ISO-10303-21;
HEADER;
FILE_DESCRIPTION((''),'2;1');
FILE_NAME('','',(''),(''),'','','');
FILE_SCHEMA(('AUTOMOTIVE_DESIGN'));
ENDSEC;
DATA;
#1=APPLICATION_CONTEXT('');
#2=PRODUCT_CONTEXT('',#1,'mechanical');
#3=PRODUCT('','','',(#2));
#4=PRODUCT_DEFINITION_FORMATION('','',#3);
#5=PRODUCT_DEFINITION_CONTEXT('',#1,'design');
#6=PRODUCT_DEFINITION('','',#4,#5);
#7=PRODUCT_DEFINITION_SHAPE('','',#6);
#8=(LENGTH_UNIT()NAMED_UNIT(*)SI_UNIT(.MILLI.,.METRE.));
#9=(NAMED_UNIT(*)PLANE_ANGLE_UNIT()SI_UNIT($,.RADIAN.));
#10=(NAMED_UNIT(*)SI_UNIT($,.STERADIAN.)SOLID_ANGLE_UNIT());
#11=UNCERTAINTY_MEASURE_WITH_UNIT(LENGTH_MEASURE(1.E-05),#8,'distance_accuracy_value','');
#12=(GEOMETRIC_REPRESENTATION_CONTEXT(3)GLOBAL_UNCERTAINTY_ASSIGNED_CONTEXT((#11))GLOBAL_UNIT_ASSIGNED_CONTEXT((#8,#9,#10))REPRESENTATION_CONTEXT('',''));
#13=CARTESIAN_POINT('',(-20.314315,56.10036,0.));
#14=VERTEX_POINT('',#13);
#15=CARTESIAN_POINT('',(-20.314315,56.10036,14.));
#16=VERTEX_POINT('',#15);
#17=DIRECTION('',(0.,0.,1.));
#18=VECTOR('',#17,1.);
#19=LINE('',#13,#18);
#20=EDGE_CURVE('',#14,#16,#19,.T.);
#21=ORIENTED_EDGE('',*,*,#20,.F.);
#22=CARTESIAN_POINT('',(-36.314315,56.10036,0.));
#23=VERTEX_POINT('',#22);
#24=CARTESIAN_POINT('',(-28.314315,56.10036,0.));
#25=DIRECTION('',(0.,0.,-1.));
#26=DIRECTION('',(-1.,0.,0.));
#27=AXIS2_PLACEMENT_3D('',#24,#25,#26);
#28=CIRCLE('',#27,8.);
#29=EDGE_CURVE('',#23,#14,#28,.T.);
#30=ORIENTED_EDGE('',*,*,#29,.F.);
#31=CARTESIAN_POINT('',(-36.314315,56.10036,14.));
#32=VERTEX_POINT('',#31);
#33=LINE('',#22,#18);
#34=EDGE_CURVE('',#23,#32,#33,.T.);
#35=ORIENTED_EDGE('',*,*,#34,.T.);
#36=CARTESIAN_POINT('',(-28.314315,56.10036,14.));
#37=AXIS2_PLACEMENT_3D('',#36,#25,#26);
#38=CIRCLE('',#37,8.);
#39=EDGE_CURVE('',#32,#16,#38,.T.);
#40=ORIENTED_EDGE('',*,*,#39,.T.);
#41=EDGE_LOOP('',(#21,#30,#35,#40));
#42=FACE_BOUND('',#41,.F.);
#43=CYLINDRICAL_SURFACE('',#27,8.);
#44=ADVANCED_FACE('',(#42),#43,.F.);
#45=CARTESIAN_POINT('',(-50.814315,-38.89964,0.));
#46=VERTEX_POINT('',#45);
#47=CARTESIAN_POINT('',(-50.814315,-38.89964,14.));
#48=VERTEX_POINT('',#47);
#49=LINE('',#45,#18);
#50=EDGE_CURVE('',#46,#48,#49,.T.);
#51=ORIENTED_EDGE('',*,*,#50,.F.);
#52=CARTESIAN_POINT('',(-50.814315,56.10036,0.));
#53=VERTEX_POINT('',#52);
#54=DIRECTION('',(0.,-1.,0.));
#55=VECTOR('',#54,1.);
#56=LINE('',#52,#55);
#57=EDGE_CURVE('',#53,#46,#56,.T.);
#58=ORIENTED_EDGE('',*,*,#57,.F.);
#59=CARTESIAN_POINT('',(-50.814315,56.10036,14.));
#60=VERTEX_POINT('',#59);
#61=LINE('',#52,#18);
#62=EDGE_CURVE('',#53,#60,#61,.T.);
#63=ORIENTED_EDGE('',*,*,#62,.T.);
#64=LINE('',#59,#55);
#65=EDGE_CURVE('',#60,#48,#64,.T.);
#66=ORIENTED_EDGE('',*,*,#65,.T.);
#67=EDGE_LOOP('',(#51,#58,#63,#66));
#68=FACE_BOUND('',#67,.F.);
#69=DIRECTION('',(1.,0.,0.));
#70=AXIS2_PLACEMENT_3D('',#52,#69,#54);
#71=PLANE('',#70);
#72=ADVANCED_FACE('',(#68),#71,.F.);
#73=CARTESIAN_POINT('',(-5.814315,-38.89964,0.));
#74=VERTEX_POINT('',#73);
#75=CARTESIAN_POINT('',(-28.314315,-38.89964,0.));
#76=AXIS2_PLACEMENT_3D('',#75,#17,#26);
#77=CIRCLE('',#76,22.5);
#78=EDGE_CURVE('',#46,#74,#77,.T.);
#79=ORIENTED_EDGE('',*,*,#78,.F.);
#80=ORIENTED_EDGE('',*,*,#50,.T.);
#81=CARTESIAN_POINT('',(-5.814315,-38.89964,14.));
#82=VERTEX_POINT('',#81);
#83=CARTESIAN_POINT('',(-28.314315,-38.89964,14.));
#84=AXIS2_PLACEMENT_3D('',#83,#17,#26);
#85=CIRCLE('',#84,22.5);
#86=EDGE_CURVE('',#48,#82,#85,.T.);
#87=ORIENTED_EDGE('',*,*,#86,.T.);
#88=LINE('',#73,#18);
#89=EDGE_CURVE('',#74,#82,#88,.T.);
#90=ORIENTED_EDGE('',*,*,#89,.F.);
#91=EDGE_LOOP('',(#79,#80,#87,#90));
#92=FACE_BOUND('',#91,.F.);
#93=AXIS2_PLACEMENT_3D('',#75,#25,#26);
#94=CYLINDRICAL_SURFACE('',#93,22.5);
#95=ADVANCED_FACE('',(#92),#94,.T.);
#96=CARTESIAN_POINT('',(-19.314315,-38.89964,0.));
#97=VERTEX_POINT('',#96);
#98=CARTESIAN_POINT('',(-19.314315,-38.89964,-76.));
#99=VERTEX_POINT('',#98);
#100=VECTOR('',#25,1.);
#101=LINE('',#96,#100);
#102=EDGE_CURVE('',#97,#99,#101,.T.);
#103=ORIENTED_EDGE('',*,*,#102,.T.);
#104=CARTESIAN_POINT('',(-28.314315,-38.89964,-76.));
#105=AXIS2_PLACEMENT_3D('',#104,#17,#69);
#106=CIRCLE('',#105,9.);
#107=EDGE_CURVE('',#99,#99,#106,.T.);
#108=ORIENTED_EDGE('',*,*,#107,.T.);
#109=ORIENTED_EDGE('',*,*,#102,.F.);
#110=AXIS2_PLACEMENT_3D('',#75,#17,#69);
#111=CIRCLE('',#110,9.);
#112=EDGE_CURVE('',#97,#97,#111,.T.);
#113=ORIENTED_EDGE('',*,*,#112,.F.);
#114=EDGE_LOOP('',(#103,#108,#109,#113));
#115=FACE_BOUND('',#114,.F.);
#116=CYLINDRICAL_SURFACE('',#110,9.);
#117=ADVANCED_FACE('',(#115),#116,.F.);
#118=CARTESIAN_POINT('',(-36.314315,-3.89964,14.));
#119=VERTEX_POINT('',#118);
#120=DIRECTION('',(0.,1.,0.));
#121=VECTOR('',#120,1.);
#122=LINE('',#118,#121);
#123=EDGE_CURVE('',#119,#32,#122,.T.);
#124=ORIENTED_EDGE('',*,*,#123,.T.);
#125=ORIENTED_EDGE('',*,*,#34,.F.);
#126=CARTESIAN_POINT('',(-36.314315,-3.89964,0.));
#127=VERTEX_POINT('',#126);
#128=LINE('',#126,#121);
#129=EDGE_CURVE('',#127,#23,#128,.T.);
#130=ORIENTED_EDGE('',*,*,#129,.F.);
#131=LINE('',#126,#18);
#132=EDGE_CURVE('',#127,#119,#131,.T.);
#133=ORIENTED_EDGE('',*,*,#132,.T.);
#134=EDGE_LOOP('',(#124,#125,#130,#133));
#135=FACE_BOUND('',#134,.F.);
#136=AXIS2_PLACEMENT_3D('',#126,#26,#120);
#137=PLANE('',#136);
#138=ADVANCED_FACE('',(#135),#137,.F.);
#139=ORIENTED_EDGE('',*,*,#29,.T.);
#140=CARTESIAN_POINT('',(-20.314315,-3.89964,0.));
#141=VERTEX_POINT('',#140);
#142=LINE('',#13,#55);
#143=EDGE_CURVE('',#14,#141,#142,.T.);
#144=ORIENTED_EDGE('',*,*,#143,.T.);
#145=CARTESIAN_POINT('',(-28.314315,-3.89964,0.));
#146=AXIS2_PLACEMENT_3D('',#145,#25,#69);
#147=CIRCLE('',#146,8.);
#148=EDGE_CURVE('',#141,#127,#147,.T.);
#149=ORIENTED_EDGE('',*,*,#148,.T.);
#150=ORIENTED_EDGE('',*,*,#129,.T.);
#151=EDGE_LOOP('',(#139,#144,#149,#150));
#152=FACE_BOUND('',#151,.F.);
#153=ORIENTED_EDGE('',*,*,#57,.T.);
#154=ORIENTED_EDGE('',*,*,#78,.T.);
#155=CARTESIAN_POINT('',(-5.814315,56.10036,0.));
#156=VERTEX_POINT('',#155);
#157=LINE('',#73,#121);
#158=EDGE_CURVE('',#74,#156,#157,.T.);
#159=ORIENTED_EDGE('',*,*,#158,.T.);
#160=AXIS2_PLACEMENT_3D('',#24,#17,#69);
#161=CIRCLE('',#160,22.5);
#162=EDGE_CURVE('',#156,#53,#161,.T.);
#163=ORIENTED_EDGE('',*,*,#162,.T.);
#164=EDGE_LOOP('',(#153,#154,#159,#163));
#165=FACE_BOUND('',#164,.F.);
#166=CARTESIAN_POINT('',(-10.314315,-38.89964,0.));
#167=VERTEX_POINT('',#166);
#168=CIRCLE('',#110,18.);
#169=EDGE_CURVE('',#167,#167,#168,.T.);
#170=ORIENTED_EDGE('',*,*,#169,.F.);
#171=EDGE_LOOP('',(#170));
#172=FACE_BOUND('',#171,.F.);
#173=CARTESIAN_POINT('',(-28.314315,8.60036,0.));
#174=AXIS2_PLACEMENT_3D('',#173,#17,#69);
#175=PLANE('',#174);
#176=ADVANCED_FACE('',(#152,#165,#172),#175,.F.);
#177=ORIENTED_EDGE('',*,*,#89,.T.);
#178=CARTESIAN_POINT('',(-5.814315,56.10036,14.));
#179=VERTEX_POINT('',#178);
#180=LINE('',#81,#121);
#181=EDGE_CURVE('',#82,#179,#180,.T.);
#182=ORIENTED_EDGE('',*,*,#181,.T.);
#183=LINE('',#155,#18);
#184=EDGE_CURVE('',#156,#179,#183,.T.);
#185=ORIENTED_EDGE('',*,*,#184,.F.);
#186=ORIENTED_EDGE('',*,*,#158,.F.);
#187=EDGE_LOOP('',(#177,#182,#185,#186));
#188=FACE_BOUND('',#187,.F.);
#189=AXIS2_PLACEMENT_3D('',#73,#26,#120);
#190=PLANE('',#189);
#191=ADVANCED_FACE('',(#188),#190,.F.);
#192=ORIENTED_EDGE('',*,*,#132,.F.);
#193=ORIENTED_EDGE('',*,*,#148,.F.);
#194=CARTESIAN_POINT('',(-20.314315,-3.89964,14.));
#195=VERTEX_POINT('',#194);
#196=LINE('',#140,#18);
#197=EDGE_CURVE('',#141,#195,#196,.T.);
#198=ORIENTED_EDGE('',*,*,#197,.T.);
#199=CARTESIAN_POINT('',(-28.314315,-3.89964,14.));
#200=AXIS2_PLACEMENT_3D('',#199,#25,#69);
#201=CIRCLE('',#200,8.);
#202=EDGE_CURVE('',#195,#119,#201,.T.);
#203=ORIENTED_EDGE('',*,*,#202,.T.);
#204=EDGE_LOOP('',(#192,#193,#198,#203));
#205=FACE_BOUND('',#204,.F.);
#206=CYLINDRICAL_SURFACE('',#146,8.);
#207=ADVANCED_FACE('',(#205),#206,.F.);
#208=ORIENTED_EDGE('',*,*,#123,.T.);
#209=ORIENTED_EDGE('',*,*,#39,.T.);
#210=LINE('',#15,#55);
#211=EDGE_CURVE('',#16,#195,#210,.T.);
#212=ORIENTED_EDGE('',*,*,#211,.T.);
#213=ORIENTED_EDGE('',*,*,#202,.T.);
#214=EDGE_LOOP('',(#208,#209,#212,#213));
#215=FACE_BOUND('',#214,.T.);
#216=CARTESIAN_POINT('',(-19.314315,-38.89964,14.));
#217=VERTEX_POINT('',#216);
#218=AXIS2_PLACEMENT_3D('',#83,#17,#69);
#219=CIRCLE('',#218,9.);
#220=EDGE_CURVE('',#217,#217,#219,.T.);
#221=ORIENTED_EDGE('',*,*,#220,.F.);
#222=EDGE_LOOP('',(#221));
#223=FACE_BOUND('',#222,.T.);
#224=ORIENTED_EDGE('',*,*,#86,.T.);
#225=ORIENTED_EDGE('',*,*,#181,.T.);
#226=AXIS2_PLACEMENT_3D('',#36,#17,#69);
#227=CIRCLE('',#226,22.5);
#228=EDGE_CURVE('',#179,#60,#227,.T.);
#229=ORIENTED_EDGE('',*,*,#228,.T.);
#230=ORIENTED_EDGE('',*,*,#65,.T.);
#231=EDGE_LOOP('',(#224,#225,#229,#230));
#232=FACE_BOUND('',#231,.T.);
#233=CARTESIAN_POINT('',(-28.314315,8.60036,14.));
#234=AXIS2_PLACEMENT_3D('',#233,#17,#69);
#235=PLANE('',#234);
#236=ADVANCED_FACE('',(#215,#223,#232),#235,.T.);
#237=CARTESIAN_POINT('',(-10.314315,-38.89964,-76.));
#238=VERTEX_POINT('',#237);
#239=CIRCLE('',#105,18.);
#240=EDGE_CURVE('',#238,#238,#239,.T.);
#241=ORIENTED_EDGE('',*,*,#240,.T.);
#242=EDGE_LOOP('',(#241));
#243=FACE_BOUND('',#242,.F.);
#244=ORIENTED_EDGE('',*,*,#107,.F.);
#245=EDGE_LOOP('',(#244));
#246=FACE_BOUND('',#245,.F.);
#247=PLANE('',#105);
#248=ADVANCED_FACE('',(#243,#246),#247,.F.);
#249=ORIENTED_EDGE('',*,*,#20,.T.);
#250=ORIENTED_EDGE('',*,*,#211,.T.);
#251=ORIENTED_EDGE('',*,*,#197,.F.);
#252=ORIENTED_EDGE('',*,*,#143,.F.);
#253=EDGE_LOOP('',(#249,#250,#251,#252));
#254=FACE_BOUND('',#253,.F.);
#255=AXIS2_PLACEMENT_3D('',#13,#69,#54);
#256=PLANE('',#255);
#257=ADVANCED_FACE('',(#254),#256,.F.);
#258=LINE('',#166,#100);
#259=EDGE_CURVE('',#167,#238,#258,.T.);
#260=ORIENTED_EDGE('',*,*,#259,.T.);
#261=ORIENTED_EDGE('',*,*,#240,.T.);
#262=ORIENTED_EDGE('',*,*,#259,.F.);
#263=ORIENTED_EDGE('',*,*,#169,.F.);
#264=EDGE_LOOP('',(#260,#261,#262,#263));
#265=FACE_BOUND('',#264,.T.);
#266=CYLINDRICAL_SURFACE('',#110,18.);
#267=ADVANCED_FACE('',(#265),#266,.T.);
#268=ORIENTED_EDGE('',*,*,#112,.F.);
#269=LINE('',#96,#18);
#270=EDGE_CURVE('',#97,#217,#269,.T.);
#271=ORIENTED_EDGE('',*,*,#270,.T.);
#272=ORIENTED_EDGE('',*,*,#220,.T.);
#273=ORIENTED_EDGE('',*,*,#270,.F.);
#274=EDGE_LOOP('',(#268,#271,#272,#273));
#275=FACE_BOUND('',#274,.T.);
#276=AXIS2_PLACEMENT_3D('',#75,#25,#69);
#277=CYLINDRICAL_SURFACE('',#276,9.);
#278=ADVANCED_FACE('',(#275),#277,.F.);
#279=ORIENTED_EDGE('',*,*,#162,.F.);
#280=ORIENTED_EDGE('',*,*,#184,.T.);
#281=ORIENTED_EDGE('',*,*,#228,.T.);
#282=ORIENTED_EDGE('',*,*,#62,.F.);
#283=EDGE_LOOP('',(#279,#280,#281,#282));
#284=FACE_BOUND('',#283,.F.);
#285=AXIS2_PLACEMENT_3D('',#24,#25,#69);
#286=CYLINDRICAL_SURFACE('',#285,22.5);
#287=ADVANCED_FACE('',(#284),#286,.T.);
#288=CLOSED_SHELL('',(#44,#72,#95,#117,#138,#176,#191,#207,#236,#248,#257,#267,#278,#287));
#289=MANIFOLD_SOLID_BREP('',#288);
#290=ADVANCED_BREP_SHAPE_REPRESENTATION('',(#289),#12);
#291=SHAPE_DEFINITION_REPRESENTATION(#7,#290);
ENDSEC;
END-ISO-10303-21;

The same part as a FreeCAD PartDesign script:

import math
import FreeCAD as App
import Part
import Sketcher
from FreeCAD import Vector

doc = App.newDocument("Part")
body = doc.addObject("PartDesign::Body", "Body")

sketch1 = doc.addObject("Sketcher::SketchObject", "Sketch")
body.addObject(sketch1)
sketch1.AttachmentSupport = (doc.XY_Plane, [""])
sketch1.MapMode = "FlatFace"
sketch1.addGeometry(Part.LineSegment(Vector(-6, -39, 0), Vector(-6, 56, 0)), False)
sketch1.addGeometry(Part.ArcOfCircle(Part.Circle(Vector(-28, 56, 0), Vector(0, 0, 1), 22), math.radians(0), math.radians(180)), False)
sketch1.addGeometry(Part.LineSegment(Vector(-51, 56, 0), Vector(-51, -39, 0)), False)
sketch1.addGeometry(Part.ArcOfCircle(Part.Circle(Vector(-28, -39, 0), Vector(0, 0, 1), 22), math.radians(180), math.radians(360)), False)
sketch1.addGeometry(Part.Circle(Vector(-28, -39, 0), Vector(0, 0, 1), 9), False)
sketch1.addGeometry(Part.ArcOfCircle(Part.Circle(Vector(-28, -4, 0), Vector(0, 0, 1), 8), math.radians(180), math.radians(360)), False)
sketch1.addGeometry(Part.LineSegment(Vector(-36, -4, 0), Vector(-36, 56, 0)), False)
sketch1.addGeometry(Part.ArcOfCircle(Part.Circle(Vector(-28, 56, 0), Vector(0, 0, 1), 8), math.radians(0), math.radians(180)), False)
sketch1.addGeometry(Part.LineSegment(Vector(-20, 56, 0), Vector(-20, -4, 0)), False)
sketch1.addConstraint(Sketcher.Constraint("Tangent", 0, 2, 1, 1))
sketch1.addConstraint(Sketcher.Constraint("Tangent", 1, 2, 2, 1))
sketch1.addConstraint(Sketcher.Constraint("Tangent", 2, 2, 3, 1))
sketch1.addConstraint(Sketcher.Constraint("Tangent", 3, 2, 0, 1))
sketch1.addConstraint(Sketcher.Constraint("Tangent", 5, 1, 6, 1))
sketch1.addConstraint(Sketcher.Constraint("Tangent", 6, 2, 7, 2))
sketch1.addConstraint(Sketcher.Constraint("Tangent", 7, 1, 8, 1))
sketch1.addConstraint(Sketcher.Constraint("Tangent", 8, 2, 5, 2))
sketch1.addConstraint(Sketcher.Constraint("Vertical", 0))
sketch1.addConstraint(Sketcher.Constraint("Vertical", 2))
sketch1.addConstraint(Sketcher.Constraint("Vertical", 6))
sketch1.addConstraint(Sketcher.Constraint("Vertical", 8))
sketch1.addConstraint(Sketcher.Constraint("Coincident", 4, 3, 3, 3))
sketch1.addConstraint(Sketcher.Constraint("Coincident", 7, 3, 1, 3))
sketch1.addConstraint(Sketcher.Constraint("Diameter", 4, 18.0))
sketch1.addConstraint(Sketcher.Constraint("Radius", 5, 8.0))
sketch1.addConstraint(Sketcher.Constraint("Radius", 1, 22.5))
sketch1.addConstraint(Sketcher.Constraint("DistanceY", 0, 1, 0, 2, 95.0))
sketch1.addConstraint(Sketcher.Constraint("DistanceY", 6, 1, 6, 2, 60.0))
sketch1.addConstraint(Sketcher.Constraint("DistanceY", -1, 1, 1, 3, 56.10036))
sketch1.addConstraint(Sketcher.Constraint("DistanceX", 1, 3, -1, 1, 28.314315))
pad1 = doc.addObject("PartDesign::Pad", "Pad")
body.addObject(pad1)
pad1.Profile = sketch1
pad1.Length = 14

sketch2 = doc.addObject("Sketcher::SketchObject", "Sketch001")
body.addObject(sketch2)
sketch2.AttachmentSupport = (doc.XY_Plane, [""])
sketch2.MapMode = "FlatFace"
sketch2.addGeometry(Part.Circle(Vector(-28, -39, 0), Vector(0, 0, 1), 18), False)
sketch2.addGeometry(Part.Circle(Vector(-28, -39, 0), Vector(0, 0, 1), 9), False)
sketch2.addConstraint(Sketcher.Constraint("Coincident", 1, 3, 0, 3))
sketch2.addConstraint(Sketcher.Constraint("Diameter", 0, 36.0))
sketch2.addConstraint(Sketcher.Constraint("Diameter", 1, 18.0))
sketch2.addConstraint(Sketcher.Constraint("DistanceY", 0, 3, -1, 1, 38.89964))
sketch2.addConstraint(Sketcher.Constraint("DistanceX", 0, 3, -1, 1, 28.314315))
pad2 = doc.addObject("PartDesign::Pad", "Pad001")
body.addObject(pad2)
pad2.Profile = sketch2
pad2.Length = 76
pad2.Reversed = True

doc.recompute()
